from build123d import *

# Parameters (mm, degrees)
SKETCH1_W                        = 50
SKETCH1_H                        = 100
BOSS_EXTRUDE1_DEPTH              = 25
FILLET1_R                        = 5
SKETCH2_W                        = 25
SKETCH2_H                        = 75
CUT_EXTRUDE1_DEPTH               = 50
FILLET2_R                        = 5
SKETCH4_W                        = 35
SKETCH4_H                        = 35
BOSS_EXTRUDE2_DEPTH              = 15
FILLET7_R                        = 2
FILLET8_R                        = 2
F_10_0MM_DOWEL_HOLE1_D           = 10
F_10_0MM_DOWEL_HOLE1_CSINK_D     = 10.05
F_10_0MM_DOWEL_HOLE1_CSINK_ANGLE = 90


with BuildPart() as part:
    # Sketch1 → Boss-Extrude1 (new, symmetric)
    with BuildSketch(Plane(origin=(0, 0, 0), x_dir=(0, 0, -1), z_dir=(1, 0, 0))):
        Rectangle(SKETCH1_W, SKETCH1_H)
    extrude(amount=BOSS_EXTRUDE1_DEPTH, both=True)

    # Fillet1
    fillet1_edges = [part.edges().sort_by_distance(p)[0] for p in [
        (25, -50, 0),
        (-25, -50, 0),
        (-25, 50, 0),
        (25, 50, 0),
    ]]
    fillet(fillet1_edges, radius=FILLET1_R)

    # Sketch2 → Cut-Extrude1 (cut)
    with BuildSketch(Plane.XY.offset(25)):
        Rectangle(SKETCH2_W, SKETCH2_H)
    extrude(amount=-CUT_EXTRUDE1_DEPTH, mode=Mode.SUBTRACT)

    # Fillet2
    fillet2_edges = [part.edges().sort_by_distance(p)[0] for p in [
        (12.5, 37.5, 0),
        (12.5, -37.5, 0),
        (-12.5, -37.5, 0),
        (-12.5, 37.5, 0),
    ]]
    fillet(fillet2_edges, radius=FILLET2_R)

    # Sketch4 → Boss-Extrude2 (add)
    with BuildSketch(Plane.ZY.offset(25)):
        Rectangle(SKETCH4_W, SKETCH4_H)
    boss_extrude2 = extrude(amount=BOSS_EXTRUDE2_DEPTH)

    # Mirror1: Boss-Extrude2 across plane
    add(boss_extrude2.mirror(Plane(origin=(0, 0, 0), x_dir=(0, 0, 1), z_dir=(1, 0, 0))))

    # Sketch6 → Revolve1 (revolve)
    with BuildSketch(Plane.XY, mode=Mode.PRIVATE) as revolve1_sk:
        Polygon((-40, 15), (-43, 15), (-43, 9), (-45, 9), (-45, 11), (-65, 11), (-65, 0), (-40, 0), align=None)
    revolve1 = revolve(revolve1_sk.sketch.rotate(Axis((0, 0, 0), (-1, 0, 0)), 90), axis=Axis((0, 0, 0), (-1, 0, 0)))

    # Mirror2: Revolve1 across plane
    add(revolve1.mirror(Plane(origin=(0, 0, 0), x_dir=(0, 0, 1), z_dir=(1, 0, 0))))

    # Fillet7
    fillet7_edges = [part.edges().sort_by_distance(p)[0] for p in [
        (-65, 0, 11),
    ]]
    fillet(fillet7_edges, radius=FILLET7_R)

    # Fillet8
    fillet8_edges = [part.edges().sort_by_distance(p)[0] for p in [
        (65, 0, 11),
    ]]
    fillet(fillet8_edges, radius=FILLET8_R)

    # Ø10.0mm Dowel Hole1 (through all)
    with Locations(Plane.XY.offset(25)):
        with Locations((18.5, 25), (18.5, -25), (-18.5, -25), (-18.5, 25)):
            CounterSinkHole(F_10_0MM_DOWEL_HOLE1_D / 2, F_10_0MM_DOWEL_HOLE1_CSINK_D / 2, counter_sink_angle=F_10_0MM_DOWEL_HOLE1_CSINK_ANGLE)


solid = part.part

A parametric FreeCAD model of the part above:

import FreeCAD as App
import Part
import Sketcher

V = App.Vector
Q = App.Units.Quantity


def edges_at(feature, points):
    """Names of the edges that pass closest to the given points."""
    edges = feature.Shape.Edges
    near = lambda p: min(range(len(edges)), key=lambda i: edges[i].distToShape(Part.Vertex(*p))[0])
    return sorted({f"Edge{near(p) + 1}" for p in points})

doc = App.newDocument("Part")
body = doc.addObject("PartDesign::Body", "Body")

# Sketch on YZ plane
sketch1 = body.newObject("Sketcher::SketchObject", "Sketch")
sketch1.AttachmentSupport = (doc.getObject("YZ_Plane"), [""])
sketch1.MapMode = "FlatFace"
sketch1.addGeometry([
    Part.LineSegment(V(50, 25, 0), V(-50, 25, 0)),
    Part.LineSegment(V(-50, 25, 0), V(-50, -25, 0)),
    Part.LineSegment(V(-50, -25, 0), V(50, -25, 0)),
    Part.LineSegment(V(50, -25, 0), V(50, 25, 0)),
], False)
sketch1.addConstraint([
    Sketcher.Constraint("Coincident", 0, 2, 1, 1),
    Sketcher.Constraint("Coincident", 1, 2, 2, 1),
    Sketcher.Constraint("Coincident", 2, 2, 3, 1),
    Sketcher.Constraint("Coincident", 3, 2, 0, 1),
    Sketcher.Constraint("Horizontal", 0),
    Sketcher.Constraint("Vertical", 1),
    Sketcher.Constraint("Horizontal", 2),
    Sketcher.Constraint("Vertical", 3),
    Sketcher.Constraint("Symmetric", 0, 2, 2, 2, -1, 1),
    Sketcher.Constraint("DistanceX", 0, 2, 0, 1, Q("100 mm")),
    Sketcher.Constraint("DistanceY", 1, 2, 1, 1, Q("50 mm")),
])
pad1 = body.newObject("PartDesign::Pad", "Pad")
pad1.Profile = sketch1
pad1.Length = 50
pad1.Midplane = True
doc.recompute()

fillet = body.newObject("PartDesign::Fillet", "Fillet")
fillet.Base = (pad1, edges_at(pad1, [
    (25, -50, 0),
    (-25, -50, 0),
    (-25, 50, 0),
    (25, 50, 0),
]))
fillet.Radius = 5

# Sketch on XY plane
sketch2 = body.newObject("Sketcher::SketchObject", "Sketch001")
sketch2.AttachmentSupport = (doc.getObject("XY_Plane"), [""])
sketch2.MapMode = "FlatFace"
sketch2.AttachmentOffset = App.Placement(V(0, 0, 25), App.Rotation())
sketch2.addGeometry([
    Part.LineSegment(V(-12.5, 37.5, 0), V(-12.5, -37.5, 0)),
    Part.LineSegment(V(-12.5, -37.5, 0), V(12.5, -37.5, 0)),
    Part.LineSegment(V(12.5, -37.5, 0), V(12.5, 37.5, 0)),
    Part.LineSegment(V(12.5, 37.5, 0), V(-12.5, 37.5, 0)),
], False)
sketch2.addConstraint([
    Sketcher.Constraint("Coincident", 0, 2, 1, 1),
    Sketcher.Constraint("Coincident", 1, 2, 2, 1),
    Sketcher.Constraint("Coincident", 2, 2, 3, 1),
    Sketcher.Constraint("Coincident", 3, 2, 0, 1),
    Sketcher.Constraint("Vertical", 0),
    Sketcher.Constraint("Horizontal", 1),
    Sketcher.Constraint("Vertical", 2),
    Sketcher.Constraint("Horizontal", 3),
    Sketcher.Constraint("Symmetric", 0, 2, 2, 2, -1, 1),
    Sketcher.Constraint("DistanceX", 1, 1, 1, 2, Q("25 mm")),
    Sketcher.Constraint("DistanceY", 0, 2, 0, 1, Q("75 mm")),
])
pocket1 = body.newObject("PartDesign::Pocket", "Pocket")
pocket1.Profile = sketch2
pocket1.Length = 50
doc.recompute()

fillet2 = body.newObject("PartDesign::Fillet", "Fillet001")
fillet2.Base = (pocket1, edges_at(pocket1, [
    (12.5, 37.5, 0),
    (12.5, -37.5, 0),
    (-12.5, -37.5, 0),
    (-12.5, 37.5, 0),
]))
fillet2.Radius = 5

# Sketch on YZ plane
sketch3 = body.newObject("Sketcher::SketchObject", "Sketch002")
sketch3.AttachmentSupport = (doc.getObject("YZ_Plane"), [""])
sketch3.MapMode = "FlatFace"
sketch3.AttachmentOffset = App.Placement(V(0, 0, -25), App.Rotation())
sketch3.addGeometry([
    Part.LineSegment(V(17.5, -17.5, 0), V(-17.5, -17.5, 0)),
    Part.LineSegment(V(-17.5, -17.5, 0), V(-17.5, 17.5, 0)),
    Part.LineSegment(V(-17.5, 17.5, 0), V(17.5, 17.5, 0)),
    Part.LineSegment(V(17.5, 17.5, 0), V(17.5, -17.5, 0)),
], False)
sketch3.addConstraint([
    Sketcher.Constraint("Coincident", 0, 2, 1, 1),
    Sketcher.Constraint("Coincident", 1, 2, 2, 1),
    Sketcher.Constraint("Coincident", 2, 2, 3, 1),
    Sketcher.Constraint("Coincident", 3, 2, 0, 1),
    Sketcher.Constraint("Horizontal", 0),
    Sketcher.Constraint("Vertical", 1),
    Sketcher.Constraint("Horizontal", 2),
    Sketcher.Constraint("Vertical", 3),
    Sketcher.Constraint("Symmetric", 0, 2, 2, 2, -1, 1),
    Sketcher.Constraint("Equal", 2, 1),
    Sketcher.Constraint("DistanceX", 0, 2, 0, 1, Q("35 mm")),
])
pad2 = body.newObject("PartDesign::Pad", "Pad001")
pad2.Profile = sketch3
pad2.Length = 15
pad2.Reversed = True
doc.recompute()

mirrored = body.newObject("PartDesign::Mirrored", "Mirrored")
mirrored.Originals = [pad2]
mirrored.MirrorPlane = (doc.getObject("YZ_Plane"), [""])
body.Tip = mirrored

# Sketch on XY plane
sketch4 = body.newObject("Sketcher::SketchObject", "Sketch003")
sketch4.AttachmentSupport = (doc.getObject("XY_Plane"), [""])
sketch4.MapMode = "FlatFace"
sketch4.addGeometry([
    Part.LineSegment(V(-40, 15, 0), V(-43, 15, 0)),  # 0
    Part.LineSegment(V(-43, 15, 0), V(-43, 9, 0)),  # 1
    Part.LineSegment(V(-43, 9, 0), V(-45, 9, 0)),  # 2
    Part.LineSegment(V(-45, 9, 0), V(-45, 11, 0)),  # 3
    Part.LineSegment(V(-45, 11, 0), V(-65, 11, 0)),  # 4
    Part.LineSegment(V(-65, 11, 0), V(-65, 0, 0)),  # 5
    Part.LineSegment(V(-65, 0, 0), V(-40, 0, 0)),  # 6
    Part.LineSegment(V(-40, 0, 0), V(-40, 15, 0)),  # 7
], False)
sketch4.addConstraint([
    Sketcher.Constraint("Coincident", 0, 2, 1, 1),
    Sketcher.Constraint("Coincident", 1, 2, 2, 1),
    Sketcher.Constraint("Coincident", 2, 2, 3, 1),
    Sketcher.Constraint("Coincident", 3, 2, 4, 1),
    Sketcher.Constraint("Coincident", 4, 2, 5, 1),
    Sketcher.Constraint("Coincident", 5, 2, 6, 1),
    Sketcher.Constraint("Coincident", 6, 2, 7, 1),
    Sketcher.Constraint("Coincident", 7, 2, 0, 1),
    Sketcher.Constraint("Horizontal", 0),
    Sketcher.Constraint("Vertical", 1),
    Sketcher.Constraint("Horizontal", 2),
    Sketcher.Constraint("Vertical", 3),
    Sketcher.Constraint("Horizontal", 4),
    Sketcher.Constraint("Vertical", 5),
    Sketcher.Constraint("Horizontal", 6),
    Sketcher.Constraint("Vertical", 7),
    Sketcher.Constraint("PointOnObject", 5, 2, -1),
    Sketcher.Constraint("Equal", 2, 3),
    Sketcher.Constraint("DistanceX", 0, 2, 0, 1, Q("3 mm")),
    Sketcher.Constraint("DistanceX", 2, 2, 2, 1, Q("2 mm")),
    Sketcher.Constraint("DistanceX", 4, 2, 4, 1, Q("20 mm")),
    Sketcher.Constraint("DistanceY", 1, 2, 1, 1, Q("6 mm")),
    Sketcher.Constraint("DistanceY", 5, 2, 5, 1, Q("11 mm")),
    Sketcher.Constraint("DistanceX", 0, 2, -1, 1, Q("43 mm")),
])
revolution = body.newObject("PartDesign::Revolution", "Revolution")
revolution.Profile = sketch4
revolution.ReferenceAxis = (sketch4, ["H_Axis"])
revolution.Angle = 360
doc.recompute()

mirrored2 = body.newObject("PartDesign::Mirrored", "Mirrored001")
mirrored2.Originals = [revolution]
mirrored2.MirrorPlane = (doc.getObject("YZ_Plane"), [""])
body.Tip = mirrored2
doc.recompute()

fillet3 = body.newObject("PartDesign::Fillet", "Fillet002")
fillet3.Base = (mirrored2, edges_at(mirrored2, [(-65, 0, 11)]))
fillet3.Radius = 2
doc.recompute()

fillet4 = body.newObject("PartDesign::Fillet", "Fillet003")
fillet4.Base = (fillet3, edges_at(fillet3, [(65, 0, 11)]))
fillet4.Radius = 2

# Sketch on XY plane
sketch5 = body.newObject("Sketcher::SketchObject", "Sketch004")
sketch5.AttachmentSupport = (doc.getObject("XY_Plane"), [""])
sketch5.MapMode = "FlatFace"
sketch5.AttachmentOffset = App.Placement(V(0, 0, 25), App.Rotation())
sketch5.addGeometry([
    Part.Circle(V(18.5, 25, 0), V(0, 0, 1), 5),
    Part.Circle(V(18.5, -25, 0), V(0, 0, 1), 5),
    Part.Circle(V(-18.5, -25, 0), V(0, 0, 1), 5),
    Part.Circle(V(-18.5, 25, 0), V(0, 0, 1), 5),
], False)
sketch5.addConstraint([
    Sketcher.Constraint("Equal", 0, 1),
    Sketcher.Constraint("Equal", 1, 2),
    Sketcher.Constraint("Equal", 2, 3),
    Sketcher.Constraint("Symmetric", 0, 3, 2, 3, -1, 1),
    Sketcher.Constraint("Symmetric", 1, 3, 3, 3, -1, 1),
    Sketcher.Constraint("Symmetric", 1, 3, 2, 3, -2),
    Sketcher.Constraint("Diameter", 0, Q("10 mm")),
    Sketcher.Constraint("DistanceY", -1, 1, 0, 3, Q("25 mm")),
    Sketcher.Constraint("DistanceX", 2, 3, 1, 3, Q("37 mm")),
])
doc.recompute()
hole = body.newObject("PartDesign::Hole", "Hole")
hole.Profile = sketch5
hole.ThreadType = "None"
hole.Diameter = 10
hole.DepthType = "ThroughAll"
hole.HoleCutType = "Countersink"
hole.HoleCutDiameter = 10.05
hole.HoleCutCountersinkAngle = 90

doc.recompute()
